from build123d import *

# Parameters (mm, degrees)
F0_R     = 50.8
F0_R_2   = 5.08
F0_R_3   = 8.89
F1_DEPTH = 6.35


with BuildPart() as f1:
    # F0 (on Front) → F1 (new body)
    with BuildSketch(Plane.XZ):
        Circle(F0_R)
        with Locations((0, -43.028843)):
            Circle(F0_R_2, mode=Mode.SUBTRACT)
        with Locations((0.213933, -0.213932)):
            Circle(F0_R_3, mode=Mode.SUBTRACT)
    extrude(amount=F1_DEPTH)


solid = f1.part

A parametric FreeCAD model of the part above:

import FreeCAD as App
import Part
import Sketcher
from FreeCAD import Vector
Q = App.Units.Quantity

doc = App.newDocument("Part")
body = doc.addObject("PartDesign::Body", "Body")

sketch1 = body.newObject("Sketcher::SketchObject", "Sketch")
sketch1.AttachmentSupport = (doc.getObject("XZ_Plane"), [""])
sketch1.MapMode = "FlatFace"
sketch1.addGeometry(Part.Circle(Vector(0, 0, 0), Vector(0, 0, 1), 50.8), False)
sketch1.addGeometry(Part.Circle(Vector(0, -43.028843, 0), Vector(0, 0, 1), 5.08), False)
sketch1.addGeometry(Part.Circle(Vector(0.213933, -0.213932, 0), Vector(0, 0, 1), 8.89), False)
sketch1.addConstraint(Sketcher.Constraint("Coincident", 0, 3, -1, 1))
sketch1.addConstraint(Sketcher.Constraint("PointOnObject", 1, 3, -2))
sketch1.addConstraint(Sketcher.Constraint("Diameter", 0, Q("4 in")))
sketch1.addConstraint(Sketcher.Constraint("Diameter", 1, Q("0.4 in")))
sketch1.addConstraint(Sketcher.Constraint("Diameter", 2, Q("0.7 in")))
sketch1.addConstraint(Sketcher.Constraint("DistanceY", 1, 3, 2, 3, 42.814911))
sketch1.addConstraint(Sketcher.Constraint("DistanceY", 1, 3, -1, 1, 43.028843))
sketch1.addConstraint(Sketcher.Constraint("DistanceX", -1, 1, 2, 3, 0.213933))
pad1 = body.newObject("PartDesign::Pad", "Pad")
pad1.Profile = sketch1
pad1.Length = Q("0.25 in")

doc.recompute()
